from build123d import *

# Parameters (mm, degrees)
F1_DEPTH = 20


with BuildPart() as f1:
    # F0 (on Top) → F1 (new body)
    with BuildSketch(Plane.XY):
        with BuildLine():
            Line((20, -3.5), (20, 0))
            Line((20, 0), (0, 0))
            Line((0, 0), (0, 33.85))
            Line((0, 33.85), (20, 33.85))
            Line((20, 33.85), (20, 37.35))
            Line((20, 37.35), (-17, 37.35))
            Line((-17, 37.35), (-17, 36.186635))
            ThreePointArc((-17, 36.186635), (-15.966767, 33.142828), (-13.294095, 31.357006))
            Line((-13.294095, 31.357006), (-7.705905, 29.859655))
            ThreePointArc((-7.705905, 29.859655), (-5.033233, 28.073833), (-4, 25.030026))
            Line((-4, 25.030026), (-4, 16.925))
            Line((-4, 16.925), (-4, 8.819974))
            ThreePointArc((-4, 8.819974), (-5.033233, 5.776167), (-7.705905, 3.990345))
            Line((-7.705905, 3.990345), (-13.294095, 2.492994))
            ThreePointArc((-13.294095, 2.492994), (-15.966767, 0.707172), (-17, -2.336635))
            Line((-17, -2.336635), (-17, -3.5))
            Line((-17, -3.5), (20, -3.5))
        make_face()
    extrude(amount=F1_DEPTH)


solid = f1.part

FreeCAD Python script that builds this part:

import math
import FreeCAD as App
import Part
import Sketcher

V = App.Vector
Q = App.Units.Quantity

doc = App.newDocument("Part")
params = doc.addObject("Spreadsheet::Sheet", "Params")
for row, (alias, value) in enumerate([
    ("sketch1_radius", "4.999999 mm"),
    ("sketch1_width", "20 mm"),
    ("sketch1_width2", "37 mm"),
    ("sketch1_height", "3.5 mm"),
    ("sketch1_height2", "33.85 mm"),
    ("pad1_length", "20 mm"),
], start=1):
    params.set(f"A{row}", alias)
    params.set(f"B{row}", "=" + value)
    params.setAlias(f"B{row}", alias)

body = doc.addObject("PartDesign::Body", "Body")

sketch1 = body.newObject("Sketcher::SketchObject", "Sketch")
sketch1.AttachmentSupport = (doc.getObject("XY_Plane"), [""])
sketch1.MapMode = "FlatFace"
sketch1.addGeometry(Part.LineSegment(V(20, -3.5, 0), V(20, 0, 0)), False)
sketch1.addGeometry(Part.LineSegment(V(20, 0, 0), V(0, 0, 0)), False)
sketch1.addGeometry(Part.LineSegment(V(0, 0, 0), V(0, 33.85, 0)), False)
sketch1.addGeometry(Part.LineSegment(V(0, 33.85, 0), V(20, 33.85, 0)), False)
sketch1.addGeometry(Part.LineSegment(V(20, 33.85, 0), V(20, 37.35, 0)), False)
sketch1.addGeometry(Part.LineSegment(V(20, 37.35, 0), V(-17, 37.35, 0)), False)
sketch1.addGeometry(Part.LineSegment(V(-17, 37.35, 0), V(-17, 36.186635, 0)), False)
sketch1.addGeometry(Part.ArcOfCircle(Part.Circle(V(-12.000001, 36.186634, 0), V(0, 0, 1), 4.999999), math.radians(179.999993), math.radians(255.000012)), False)
sketch1.addGeometry(Part.LineSegment(V(-13.294095, 31.357006, 0), V(-7.705905, 29.859655, 0)), False)
sketch1.addGeometry(Part.ArcOfCircle(Part.Circle(V(-8.999999, 25.030027, 0), V(0, 0, 1), 4.999999), math.radians(-0.000007), math.radians(75.000012)), False)
sketch1.addGeometry(Part.LineSegment(V(-4, 25.030026, 0), V(-4, 8.819974, 0)), False)
sketch1.addGeometry(Part.ArcOfCircle(Part.Circle(V(-8.999999, 8.819973, 0), V(0, 0, 1), 4.999999), math.radians(-75.000012), math.radians(0.000007)), False)
sketch1.addGeometry(Part.LineSegment(V(-7.705905, 3.990345, 0), V(-13.294095, 2.492994, 0)), False)
sketch1.addGeometry(Part.ArcOfCircle(Part.Circle(V(-12.000001, -2.336634, 0), V(0, 0, 1), 4.999999), math.radians(104.999988), math.radians(180.000007)), False)
sketch1.addGeometry(Part.LineSegment(V(-17, -2.336635, 0), V(-17, -3.5, 0)), False)
sketch1.addGeometry(Part.LineSegment(V(-17, -3.5, 0), V(20, -3.5, 0)), False)
sketch1.addConstraint(Sketcher.Constraint("Coincident", 0, 2, 1, 1))
sketch1.addConstraint(Sketcher.Constraint("Coincident", 1, 2, 2, 1))
sketch1.addConstraint(Sketcher.Constraint("Coincident", 2, 2, 3, 1))
sketch1.addConstraint(Sketcher.Constraint("Coincident", 3, 2, 4, 1))
sketch1.addConstraint(Sketcher.Constraint("Coincident", 4, 2, 5, 1))
sketch1.addConstraint(Sketcher.Constraint("Coincident", 5, 2, 6, 1))
sketch1.addConstraint(Sketcher.Constraint("Tangent", 6, 2, 7, 1))
sketch1.addConstraint(Sketcher.Constraint("Tangent", 7, 2, 8, 1))
sketch1.addConstraint(Sketcher.Constraint("Tangent", 8, 2, 9, 2))
sketch1.addConstraint(Sketcher.Constraint("Tangent", 9, 1, 10, 1))
sketch1.addConstraint(Sketcher.Constraint("Tangent", 10, 2, 11, 2))
sketch1.addConstraint(Sketcher.Constraint("Tangent", 11, 1, 12, 1))
sketch1.addConstraint(Sketcher.Constraint("Tangent", 12, 2, 13, 1))
sketch1.addConstraint(Sketcher.Constraint("Tangent", 13, 2, 14, 1))
sketch1.addConstraint(Sketcher.Constraint("Coincident", 14, 2, 15, 1))
sketch1.addConstraint(Sketcher.Constraint("Coincident", 15, 2, 0, 1))
sketch1.addConstraint(Sketcher.Constraint("Vertical", 0))
sketch1.addConstraint(Sketcher.Constraint("Horizontal", 1))
sketch1.addConstraint(Sketcher.Constraint("Vertical", 2))
sketch1.addConstraint(Sketcher.Constraint("Horizontal", 3))
sketch1.addConstraint(Sketcher.Constraint("Vertical", 4))
sketch1.addConstraint(Sketcher.Constraint("Horizontal", 5))
sketch1.addConstraint(Sketcher.Constraint("Vertical", 6))
sketch1.addConstraint(Sketcher.Constraint("Vertical", 10))
sketch1.addConstraint(Sketcher.Constraint("Vertical", 14))
sketch1.addConstraint(Sketcher.Constraint("Horizontal", 15))
sketch1.addConstraint(Sketcher.Constraint("Coincident", 1, 2, -1, 1))
sketch1.addConstraint(Sketcher.Constraint("Equal", 7, 9))
sketch1.addConstraint(Sketcher.Constraint("Equal", 9, 11))
sketch1.addConstraint(Sketcher.Constraint("Equal", 11, 13))
sketch1.addConstraint(Sketcher.Constraint("Vertical", 7, 3, 13, 3))
sketch1.addConstraint(Sketcher.Constraint("Vertical", 0, 2, 3, 2))
sketch1.addConstraint(Sketcher.Constraint("Vertical", 8, 2, 11, 1))
sketch1.addConstraint(Sketcher.Constraint("Equal", 0, 4))
sketch1.addConstraint(Sketcher.Constraint("Equal", 6, 14))
sketch1.addConstraint(Sketcher.Constraint("Radius", 7, Q("4.999999 mm")))
sketch1.addConstraint(Sketcher.Constraint("DistanceX", 1, 2, 1, 1, Q("20 mm")))
sketch1.addConstraint(Sketcher.Constraint("DistanceX", 5, 2, 5, 1, Q("37 mm")))
sketch1.addConstraint(Sketcher.Constraint("Angle", 8, Q("-15 deg")))
sketch1.addConstraint(Sketcher.Constraint("DistanceY", 0, 1, 0, 2, Q("3.5 mm")))
sketch1.addConstraint(Sketcher.Constraint("DistanceX", 9, 3, -1, 1, Q("8.999999 mm")))
sketch1.addConstraint(Sketcher.Constraint("DistanceY", 2, 1, 2, 2, Q("33.85 mm")))
sketch1.addConstraint(Sketcher.Constraint("DistanceY", 10, 2, 10, 1, Q("16.210052 mm")))
sketch1.setExpression("Constraints[35]", "Params.sketch1_radius")
sketch1.setExpression("Constraints[36]", "Params.sketch1_width")
sketch1.setExpression("Constraints[37]", "Params.sketch1_width2")
sketch1.setExpression("Constraints[39]", "Params.sketch1_height")
sketch1.setExpression("Constraints[41]", "Params.sketch1_height2")
pad1 = body.newObject("PartDesign::Pad", "Pad")
pad1.Profile = sketch1
pad1.setExpression("Length", "Params.pad1_length")

doc.recompute()
